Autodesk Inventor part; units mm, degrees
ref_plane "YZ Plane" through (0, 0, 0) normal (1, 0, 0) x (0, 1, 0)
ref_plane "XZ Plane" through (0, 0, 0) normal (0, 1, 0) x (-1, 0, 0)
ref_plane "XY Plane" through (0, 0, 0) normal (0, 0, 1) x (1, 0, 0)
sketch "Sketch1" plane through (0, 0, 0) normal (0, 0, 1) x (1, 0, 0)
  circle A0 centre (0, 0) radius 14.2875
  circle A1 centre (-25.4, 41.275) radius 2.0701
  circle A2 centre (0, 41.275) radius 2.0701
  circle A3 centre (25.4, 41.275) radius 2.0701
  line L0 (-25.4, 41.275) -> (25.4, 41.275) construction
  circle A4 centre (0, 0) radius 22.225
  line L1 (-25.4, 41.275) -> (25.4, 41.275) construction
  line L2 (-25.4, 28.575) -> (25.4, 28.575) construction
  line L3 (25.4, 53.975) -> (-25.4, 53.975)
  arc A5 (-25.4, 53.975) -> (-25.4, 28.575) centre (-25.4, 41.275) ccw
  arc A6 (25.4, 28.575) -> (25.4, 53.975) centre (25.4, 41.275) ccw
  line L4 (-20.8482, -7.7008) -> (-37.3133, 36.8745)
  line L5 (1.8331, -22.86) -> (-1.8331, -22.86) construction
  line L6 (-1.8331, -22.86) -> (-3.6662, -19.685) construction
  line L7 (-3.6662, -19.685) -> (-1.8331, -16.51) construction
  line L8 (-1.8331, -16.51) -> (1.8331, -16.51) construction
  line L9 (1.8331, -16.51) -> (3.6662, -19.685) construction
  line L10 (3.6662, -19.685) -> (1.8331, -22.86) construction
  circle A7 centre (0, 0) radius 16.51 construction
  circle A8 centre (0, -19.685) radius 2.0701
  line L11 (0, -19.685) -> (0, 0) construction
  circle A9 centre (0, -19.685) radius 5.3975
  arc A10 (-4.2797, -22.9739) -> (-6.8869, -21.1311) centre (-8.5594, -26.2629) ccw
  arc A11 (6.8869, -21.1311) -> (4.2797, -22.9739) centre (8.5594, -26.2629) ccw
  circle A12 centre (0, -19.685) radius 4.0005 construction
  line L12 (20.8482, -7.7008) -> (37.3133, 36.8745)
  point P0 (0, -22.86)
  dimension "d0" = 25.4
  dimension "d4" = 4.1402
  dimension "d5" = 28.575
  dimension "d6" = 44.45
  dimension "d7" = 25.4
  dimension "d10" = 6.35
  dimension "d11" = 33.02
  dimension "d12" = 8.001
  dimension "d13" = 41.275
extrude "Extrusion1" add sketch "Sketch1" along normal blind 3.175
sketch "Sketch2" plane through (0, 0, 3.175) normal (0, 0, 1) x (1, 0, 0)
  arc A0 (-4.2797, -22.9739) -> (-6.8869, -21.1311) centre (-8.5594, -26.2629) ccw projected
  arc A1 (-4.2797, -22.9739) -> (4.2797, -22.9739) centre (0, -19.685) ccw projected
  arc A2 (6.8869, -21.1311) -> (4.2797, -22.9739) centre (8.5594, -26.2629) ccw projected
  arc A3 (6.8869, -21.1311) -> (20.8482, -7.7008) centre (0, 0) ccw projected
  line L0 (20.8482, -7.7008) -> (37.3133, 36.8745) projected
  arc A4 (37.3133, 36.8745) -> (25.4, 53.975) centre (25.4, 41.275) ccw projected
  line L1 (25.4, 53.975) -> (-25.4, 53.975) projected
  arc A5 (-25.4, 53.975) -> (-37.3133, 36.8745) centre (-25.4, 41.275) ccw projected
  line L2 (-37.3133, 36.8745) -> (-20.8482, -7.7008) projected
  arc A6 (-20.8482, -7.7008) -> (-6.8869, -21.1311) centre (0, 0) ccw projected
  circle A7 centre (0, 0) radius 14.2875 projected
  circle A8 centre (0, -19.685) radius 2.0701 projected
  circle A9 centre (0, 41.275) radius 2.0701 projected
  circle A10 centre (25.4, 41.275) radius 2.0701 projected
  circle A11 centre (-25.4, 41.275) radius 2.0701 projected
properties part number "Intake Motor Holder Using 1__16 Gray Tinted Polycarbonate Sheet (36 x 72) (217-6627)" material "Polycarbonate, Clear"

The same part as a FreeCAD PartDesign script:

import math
import FreeCAD as App
import Part
import Sketcher

V = App.Vector
Q = App.Units.Quantity

doc = App.newDocument("Part")
body = doc.addObject("PartDesign::Body", "Body")

# Sketch on XY plane
sketch1 = body.newObject("Sketcher::SketchObject", "Sketch")
sketch1.AttachmentSupport = (doc.getObject("XY_Plane"), [""])
sketch1.MapMode = "FlatFace"
sketch1.addGeometry(Part.ArcOfCircle(Part.Circle(V(0, 0, 0), V(0, 0, 1), 22.2), math.radians(-160), math.radians(-108)), False)
sketch1.addGeometry(Part.ArcOfCircle(Part.Circle(V(-8.6, -26.3, 0), V(0, 0, 1), 5.4), math.radians(38), math.radians(72)), False)
sketch1.addGeometry(Part.ArcOfCircle(Part.Circle(V(0, -19.7, 0), V(0, 0, 1), 5.4), math.radians(-142), math.radians(-38)), False)
sketch1.addGeometry(Part.ArcOfCircle(Part.Circle(V(8.6, -26.3, 0), V(0, 0, 1), 5.4), math.radians(108), math.radians(142)), False)
sketch1.addGeometry(Part.ArcOfCircle(Part.Circle(V(0, 0, 0), V(0, 0, 1), 22.2), math.radians(-72), math.radians(-20)), False)
sketch1.addGeometry(Part.LineSegment(V(20.8, -7.7, 0), V(37.3, 36.9, 0)), False)
sketch1.addGeometry(Part.ArcOfCircle(Part.Circle(V(25.4, 41.3, 0), V(0, 0, 1), 12.7), math.radians(-20), math.radians(90)), False)
sketch1.addGeometry(Part.LineSegment(V(25.4, 54, 0), V(-25.4, 54, 0)), False)
sketch1.addGeometry(Part.ArcOfCircle(Part.Circle(V(-25.4, 41.3, 0), V(0, 0, 1), 12.7), math.radians(90), math.radians(200)), False)
sketch1.addGeometry(Part.LineSegment(V(-37.3, 36.9, 0), V(-20.8, -7.7, 0)), False)
sketch1.addGeometry(Part.Circle(V(0, 0, 0), V(0, 0, 1), 14.3), False)
sketch1.addGeometry(Part.Circle(V(0, -19.7, 0), V(0, 0, 1), 2.1), False)
sketch1.addGeometry(Part.Circle(V(0, 41.3, 0), V(0, 0, 1), 2.1), False)
sketch1.addGeometry(Part.Circle(V(25.4, 41.3, 0), V(0, 0, 1), 2.1), False)
sketch1.addGeometry(Part.Circle(V(-25.4, 41.3, 0), V(0, 0, 1), 2.1), False)
sketch1.addConstraint(Sketcher.Constraint("Tangent", 0, 2, 1, 2))
sketch1.addConstraint(Sketcher.Constraint("Tangent", 1, 1, 2, 1))
sketch1.addConstraint(Sketcher.Constraint("Tangent", 2, 2, 3, 2))
sketch1.addConstraint(Sketcher.Constraint("Tangent", 3, 1, 4, 1))
sketch1.addConstraint(Sketcher.Constraint("Tangent", 4, 2, 5, 1))
sketch1.addConstraint(Sketcher.Constraint("Tangent", 5, 2, 6, 1))
sketch1.addConstraint(Sketcher.Constraint("Tangent", 6, 2, 7, 1))
sketch1.addConstraint(Sketcher.Constraint("Tangent", 7, 2, 8, 1))
sketch1.addConstraint(Sketcher.Constraint("Tangent", 8, 2, 9, 1))
sketch1.addConstraint(Sketcher.Constraint("Tangent", 9, 2, 0, 1))
sketch1.addConstraint(Sketcher.Constraint("Horizontal", 7))
sketch1.addConstraint(Sketcher.Constraint("Coincident", 0, 3, -1, 1))
sketch1.addConstraint(Sketcher.Constraint("Coincident", 4, 3, -1, 1))
sketch1.addConstraint(Sketcher.Constraint("Coincident", 10, 3, -1, 1))
sketch1.addConstraint(Sketcher.Constraint("Coincident", 11, 3, 2, 3))
sketch1.addConstraint(Sketcher.Constraint("Coincident", 13, 3, 6, 3))
sketch1.addConstraint(Sketcher.Constraint("Coincident", 14, 3, 8, 3))
sketch1.addConstraint(Sketcher.Constraint("Equal", 1, 2))
sketch1.addConstraint(Sketcher.Constraint("Equal", 2, 3))
sketch1.addConstraint(Sketcher.Constraint("Equal", 0, 4))
sketch1.addConstraint(Sketcher.Constraint("Equal", 6, 8))
sketch1.addConstraint(Sketcher.Constraint("Equal", 11, 12))
sketch1.addConstraint(Sketcher.Constraint("Equal", 12, 13))
sketch1.addConstraint(Sketcher.Constraint("Equal", 13, 14))
sketch1.addConstraint(Sketcher.Constraint("PointOnObject", 2, 3, -2))
sketch1.addConstraint(Sketcher.Constraint("PointOnObject", 12, 3, -2))
sketch1.addConstraint(Sketcher.Constraint("Horizontal", 8, 3, 12, 3))
sketch1.addConstraint(Sketcher.Constraint("Horizontal", 5, 2, 8, 2))
sketch1.addConstraint(Sketcher.Constraint("Radius", 6, Q("0.5 in")))
sketch1.addConstraint(Sketcher.Constraint("Diameter", 10, Q("1.125 in")))
sketch1.addConstraint(Sketcher.Constraint("Diameter", 11, Q("0.163 in")))
sketch1.addConstraint(Sketcher.Constraint("DistanceX", -1, 1, 6, 3, Q("1 in")))
sketch1.addConstraint(Sketcher.Constraint("Radius", 0, Q("0.875 in")))
sketch1.addConstraint(Sketcher.Constraint("DistanceY", -1, 1, 6, 3, Q("1.625 in")))
sketch1.addConstraint(Sketcher.Constraint("Radius", 1, Q("0.2125 in")))
sketch1.addConstraint(Sketcher.Constraint("DistanceY", 2, 3, 6, 3, Q("2.4 in")))
pad1 = body.newObject("PartDesign::Pad", "Pad")
pad1.Profile = sketch1
pad1.Length = Q("0.125 in")

doc.recompute()
